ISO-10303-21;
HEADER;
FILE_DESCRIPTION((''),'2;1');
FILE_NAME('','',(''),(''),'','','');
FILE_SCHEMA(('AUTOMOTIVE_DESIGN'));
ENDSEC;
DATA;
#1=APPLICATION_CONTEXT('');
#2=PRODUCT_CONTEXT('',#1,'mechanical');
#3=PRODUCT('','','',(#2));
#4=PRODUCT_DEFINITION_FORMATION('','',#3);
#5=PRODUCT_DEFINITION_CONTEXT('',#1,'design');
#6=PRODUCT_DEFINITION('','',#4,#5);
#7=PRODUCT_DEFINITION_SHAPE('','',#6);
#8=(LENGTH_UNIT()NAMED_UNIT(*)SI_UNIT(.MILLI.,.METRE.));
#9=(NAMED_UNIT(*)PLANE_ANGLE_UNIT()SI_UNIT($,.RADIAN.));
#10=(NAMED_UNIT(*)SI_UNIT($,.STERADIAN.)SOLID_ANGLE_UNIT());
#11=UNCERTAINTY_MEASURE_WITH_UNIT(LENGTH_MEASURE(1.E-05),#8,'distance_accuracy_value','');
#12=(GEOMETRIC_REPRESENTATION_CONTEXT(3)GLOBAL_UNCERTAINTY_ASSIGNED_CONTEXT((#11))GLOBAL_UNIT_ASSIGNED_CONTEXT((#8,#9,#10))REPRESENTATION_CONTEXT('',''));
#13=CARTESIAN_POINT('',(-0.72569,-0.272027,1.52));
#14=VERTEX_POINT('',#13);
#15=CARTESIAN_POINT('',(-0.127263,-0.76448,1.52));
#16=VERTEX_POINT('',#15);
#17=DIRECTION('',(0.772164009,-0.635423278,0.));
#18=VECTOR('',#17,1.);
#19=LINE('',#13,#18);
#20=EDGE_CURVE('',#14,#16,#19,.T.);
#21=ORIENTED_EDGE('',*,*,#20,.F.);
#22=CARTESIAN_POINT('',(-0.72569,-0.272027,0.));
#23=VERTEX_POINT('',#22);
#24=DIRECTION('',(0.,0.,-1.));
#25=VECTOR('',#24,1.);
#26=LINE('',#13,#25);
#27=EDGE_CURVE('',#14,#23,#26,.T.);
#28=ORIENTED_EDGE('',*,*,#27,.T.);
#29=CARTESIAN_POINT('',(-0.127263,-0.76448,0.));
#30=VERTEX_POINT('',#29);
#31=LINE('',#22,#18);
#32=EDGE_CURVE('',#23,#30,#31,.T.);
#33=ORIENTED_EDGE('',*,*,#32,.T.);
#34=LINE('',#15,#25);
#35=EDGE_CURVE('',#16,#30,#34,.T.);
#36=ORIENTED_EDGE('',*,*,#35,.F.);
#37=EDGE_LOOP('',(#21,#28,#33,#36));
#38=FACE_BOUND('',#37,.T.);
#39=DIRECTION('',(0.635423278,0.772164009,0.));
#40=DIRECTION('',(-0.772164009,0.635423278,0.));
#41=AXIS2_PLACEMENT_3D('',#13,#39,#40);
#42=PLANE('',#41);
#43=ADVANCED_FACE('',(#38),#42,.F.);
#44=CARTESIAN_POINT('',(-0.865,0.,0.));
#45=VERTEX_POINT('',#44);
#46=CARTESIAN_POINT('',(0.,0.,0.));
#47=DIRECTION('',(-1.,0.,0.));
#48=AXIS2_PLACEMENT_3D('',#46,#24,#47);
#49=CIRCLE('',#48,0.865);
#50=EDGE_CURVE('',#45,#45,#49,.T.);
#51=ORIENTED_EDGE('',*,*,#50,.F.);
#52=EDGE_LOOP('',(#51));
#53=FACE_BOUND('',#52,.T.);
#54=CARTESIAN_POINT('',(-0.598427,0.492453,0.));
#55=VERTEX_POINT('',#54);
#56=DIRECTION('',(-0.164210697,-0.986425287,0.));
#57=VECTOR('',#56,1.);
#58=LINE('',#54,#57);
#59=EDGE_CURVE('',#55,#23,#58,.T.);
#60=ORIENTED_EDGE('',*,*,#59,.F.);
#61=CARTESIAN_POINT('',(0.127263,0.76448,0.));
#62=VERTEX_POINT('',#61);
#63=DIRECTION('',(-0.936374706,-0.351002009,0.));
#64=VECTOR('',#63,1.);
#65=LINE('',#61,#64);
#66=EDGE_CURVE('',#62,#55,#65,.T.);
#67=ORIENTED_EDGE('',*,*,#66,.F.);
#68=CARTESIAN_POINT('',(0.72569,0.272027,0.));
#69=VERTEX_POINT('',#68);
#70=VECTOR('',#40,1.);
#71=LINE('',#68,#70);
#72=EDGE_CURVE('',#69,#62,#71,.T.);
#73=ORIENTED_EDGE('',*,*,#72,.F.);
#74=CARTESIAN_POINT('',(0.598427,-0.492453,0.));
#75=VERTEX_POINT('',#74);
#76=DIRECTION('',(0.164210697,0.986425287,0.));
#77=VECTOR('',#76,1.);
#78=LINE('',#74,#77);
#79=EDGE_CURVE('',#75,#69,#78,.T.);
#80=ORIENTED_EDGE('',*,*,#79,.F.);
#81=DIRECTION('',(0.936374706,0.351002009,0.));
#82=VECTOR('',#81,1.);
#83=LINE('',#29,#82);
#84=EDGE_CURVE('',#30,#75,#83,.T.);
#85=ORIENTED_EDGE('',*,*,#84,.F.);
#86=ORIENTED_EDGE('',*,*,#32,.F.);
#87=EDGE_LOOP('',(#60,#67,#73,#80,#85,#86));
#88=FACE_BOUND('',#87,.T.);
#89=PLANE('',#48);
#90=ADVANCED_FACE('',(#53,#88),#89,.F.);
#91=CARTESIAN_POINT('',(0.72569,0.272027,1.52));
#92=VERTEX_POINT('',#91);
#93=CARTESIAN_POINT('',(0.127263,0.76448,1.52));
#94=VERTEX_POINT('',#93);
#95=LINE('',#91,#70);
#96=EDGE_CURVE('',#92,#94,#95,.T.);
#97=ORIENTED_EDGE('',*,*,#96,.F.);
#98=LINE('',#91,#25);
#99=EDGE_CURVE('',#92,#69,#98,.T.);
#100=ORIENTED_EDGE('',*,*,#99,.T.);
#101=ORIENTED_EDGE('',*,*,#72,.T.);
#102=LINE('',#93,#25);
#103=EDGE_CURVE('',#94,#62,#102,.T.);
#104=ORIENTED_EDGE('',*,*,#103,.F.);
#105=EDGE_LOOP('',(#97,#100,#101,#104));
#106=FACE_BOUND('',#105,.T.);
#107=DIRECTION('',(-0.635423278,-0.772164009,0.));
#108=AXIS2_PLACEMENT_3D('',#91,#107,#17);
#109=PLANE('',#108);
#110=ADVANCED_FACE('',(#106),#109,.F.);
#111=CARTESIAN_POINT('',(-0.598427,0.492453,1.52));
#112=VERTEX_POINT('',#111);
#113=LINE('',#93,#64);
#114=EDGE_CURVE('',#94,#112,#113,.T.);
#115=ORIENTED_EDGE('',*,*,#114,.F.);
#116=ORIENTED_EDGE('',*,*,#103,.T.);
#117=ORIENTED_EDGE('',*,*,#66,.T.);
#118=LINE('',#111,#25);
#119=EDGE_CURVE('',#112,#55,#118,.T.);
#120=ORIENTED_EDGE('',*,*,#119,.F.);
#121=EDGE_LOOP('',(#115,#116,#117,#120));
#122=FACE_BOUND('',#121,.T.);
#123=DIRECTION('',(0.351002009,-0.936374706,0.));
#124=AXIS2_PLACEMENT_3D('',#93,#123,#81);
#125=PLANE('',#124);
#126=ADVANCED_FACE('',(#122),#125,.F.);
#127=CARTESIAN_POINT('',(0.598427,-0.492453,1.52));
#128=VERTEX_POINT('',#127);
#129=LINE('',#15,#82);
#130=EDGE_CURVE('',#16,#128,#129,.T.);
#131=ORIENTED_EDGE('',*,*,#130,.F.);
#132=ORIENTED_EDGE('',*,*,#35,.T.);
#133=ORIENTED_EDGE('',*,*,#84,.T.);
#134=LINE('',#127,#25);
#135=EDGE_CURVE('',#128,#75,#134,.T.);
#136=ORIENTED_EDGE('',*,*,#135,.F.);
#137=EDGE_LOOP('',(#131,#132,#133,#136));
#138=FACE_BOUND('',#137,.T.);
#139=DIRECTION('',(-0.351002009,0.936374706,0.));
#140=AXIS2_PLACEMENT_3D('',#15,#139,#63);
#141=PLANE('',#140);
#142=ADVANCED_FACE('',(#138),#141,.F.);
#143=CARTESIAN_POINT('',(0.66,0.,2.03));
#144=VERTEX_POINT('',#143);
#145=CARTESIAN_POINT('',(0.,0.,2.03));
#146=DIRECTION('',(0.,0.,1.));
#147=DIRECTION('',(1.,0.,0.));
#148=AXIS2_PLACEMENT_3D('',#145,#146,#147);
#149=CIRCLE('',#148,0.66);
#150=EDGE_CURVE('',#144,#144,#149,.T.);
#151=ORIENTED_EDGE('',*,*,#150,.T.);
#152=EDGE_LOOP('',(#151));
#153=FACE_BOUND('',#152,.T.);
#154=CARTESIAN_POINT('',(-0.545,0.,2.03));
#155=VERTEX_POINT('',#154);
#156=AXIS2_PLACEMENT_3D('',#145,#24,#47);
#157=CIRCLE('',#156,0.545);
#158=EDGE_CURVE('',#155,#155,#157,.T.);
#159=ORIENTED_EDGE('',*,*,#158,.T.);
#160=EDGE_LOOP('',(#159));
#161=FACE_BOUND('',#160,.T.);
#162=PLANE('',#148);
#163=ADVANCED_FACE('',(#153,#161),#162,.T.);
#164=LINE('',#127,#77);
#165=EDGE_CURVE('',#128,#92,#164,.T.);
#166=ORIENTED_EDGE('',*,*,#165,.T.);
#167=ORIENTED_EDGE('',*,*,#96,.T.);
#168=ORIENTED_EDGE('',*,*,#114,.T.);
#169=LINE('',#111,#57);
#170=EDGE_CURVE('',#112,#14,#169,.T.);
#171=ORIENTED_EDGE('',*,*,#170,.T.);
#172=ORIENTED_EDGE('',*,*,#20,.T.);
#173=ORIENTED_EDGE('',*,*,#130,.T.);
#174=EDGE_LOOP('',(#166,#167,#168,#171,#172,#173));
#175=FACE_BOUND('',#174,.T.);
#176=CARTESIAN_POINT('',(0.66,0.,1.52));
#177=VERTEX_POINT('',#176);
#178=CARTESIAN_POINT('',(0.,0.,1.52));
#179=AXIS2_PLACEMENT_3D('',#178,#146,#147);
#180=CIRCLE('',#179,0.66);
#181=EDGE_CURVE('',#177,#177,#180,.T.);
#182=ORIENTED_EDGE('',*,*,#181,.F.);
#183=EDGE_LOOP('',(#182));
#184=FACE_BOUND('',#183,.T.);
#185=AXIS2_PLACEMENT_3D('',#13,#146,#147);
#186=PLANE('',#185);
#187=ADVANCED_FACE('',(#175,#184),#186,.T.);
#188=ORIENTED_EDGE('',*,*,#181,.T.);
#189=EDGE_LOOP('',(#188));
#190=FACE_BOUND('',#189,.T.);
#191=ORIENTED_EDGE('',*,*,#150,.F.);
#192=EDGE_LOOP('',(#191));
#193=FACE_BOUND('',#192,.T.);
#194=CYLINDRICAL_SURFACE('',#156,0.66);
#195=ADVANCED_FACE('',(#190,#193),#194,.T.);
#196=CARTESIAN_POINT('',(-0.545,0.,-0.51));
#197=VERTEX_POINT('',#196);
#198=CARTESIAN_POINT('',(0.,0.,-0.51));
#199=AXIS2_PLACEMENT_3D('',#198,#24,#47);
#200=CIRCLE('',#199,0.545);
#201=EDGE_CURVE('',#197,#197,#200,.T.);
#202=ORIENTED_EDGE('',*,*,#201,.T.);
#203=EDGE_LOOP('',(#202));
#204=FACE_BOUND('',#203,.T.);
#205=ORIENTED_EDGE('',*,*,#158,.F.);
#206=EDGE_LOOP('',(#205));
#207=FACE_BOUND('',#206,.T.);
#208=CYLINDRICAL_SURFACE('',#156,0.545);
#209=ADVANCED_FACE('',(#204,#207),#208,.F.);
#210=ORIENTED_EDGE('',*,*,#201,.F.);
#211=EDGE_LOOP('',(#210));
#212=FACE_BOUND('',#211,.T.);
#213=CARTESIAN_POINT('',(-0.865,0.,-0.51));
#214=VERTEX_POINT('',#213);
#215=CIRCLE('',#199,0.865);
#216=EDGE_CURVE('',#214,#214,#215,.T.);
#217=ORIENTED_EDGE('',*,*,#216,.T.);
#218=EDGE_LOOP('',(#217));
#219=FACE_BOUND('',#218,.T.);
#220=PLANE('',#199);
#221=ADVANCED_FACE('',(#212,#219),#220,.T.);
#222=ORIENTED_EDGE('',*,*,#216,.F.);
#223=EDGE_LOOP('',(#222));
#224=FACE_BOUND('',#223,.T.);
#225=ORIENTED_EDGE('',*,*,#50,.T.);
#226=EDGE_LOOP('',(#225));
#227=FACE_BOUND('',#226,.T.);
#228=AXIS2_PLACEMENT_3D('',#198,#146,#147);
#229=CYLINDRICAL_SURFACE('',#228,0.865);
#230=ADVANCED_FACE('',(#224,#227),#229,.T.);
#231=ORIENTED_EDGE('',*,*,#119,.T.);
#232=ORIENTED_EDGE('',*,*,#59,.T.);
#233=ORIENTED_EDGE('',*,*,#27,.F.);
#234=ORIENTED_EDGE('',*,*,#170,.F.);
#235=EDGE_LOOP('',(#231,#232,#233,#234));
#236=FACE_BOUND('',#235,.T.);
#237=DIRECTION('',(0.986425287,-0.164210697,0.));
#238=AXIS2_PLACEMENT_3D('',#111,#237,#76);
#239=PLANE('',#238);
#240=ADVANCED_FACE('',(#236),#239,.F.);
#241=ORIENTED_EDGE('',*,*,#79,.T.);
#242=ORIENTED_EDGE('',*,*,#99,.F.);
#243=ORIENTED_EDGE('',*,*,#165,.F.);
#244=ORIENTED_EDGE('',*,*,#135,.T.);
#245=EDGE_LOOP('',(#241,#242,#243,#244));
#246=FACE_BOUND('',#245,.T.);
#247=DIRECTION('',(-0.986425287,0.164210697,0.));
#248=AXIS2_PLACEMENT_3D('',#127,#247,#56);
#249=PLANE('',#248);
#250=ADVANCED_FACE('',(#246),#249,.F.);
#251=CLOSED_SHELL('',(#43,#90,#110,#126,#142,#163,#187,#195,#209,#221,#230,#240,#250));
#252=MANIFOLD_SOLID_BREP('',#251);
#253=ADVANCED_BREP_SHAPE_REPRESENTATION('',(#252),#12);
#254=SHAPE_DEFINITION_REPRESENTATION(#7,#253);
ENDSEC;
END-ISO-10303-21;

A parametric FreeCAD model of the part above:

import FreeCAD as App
import Part
import Sketcher

V = App.Vector
Q = App.Units.Quantity

doc = App.newDocument("Part")
body = doc.addObject("PartDesign::Body", "Body")

# Sketch on XY plane
sketch1 = doc.addObject("Sketcher::SketchObject", "Sketch")
body.addObject(sketch1)
sketch1.AttachmentSupport = (doc.XY_Plane, [""])
sketch1.MapMode = "FlatFace"
sketch1.addGeometry([
    Part.LineSegment(V(-0.72569, -0.272027, 0), V(-0.127263, -0.76448, 0)),  # 0
    Part.LineSegment(V(-0.127263, -0.76448, 0), V(0.598427, -0.492453, 0)),  # 1
    Part.LineSegment(V(0.598427, -0.492453, 0), V(0.72569, 0.272027, 0)),  # 2
    Part.LineSegment(V(0.72569, 0.272027, 0), V(0.127263, 0.76448, 0)),  # 3
    Part.LineSegment(V(0.127263, 0.76448, 0), V(-0.598427, 0.492453, 0)),  # 4
    Part.LineSegment(V(-0.598427, 0.492453, 0), V(-0.72569, -0.272027, 0)),  # 5
], False)
sketch1.addConstraint([
    Sketcher.Constraint("Coincident", 0, 2, 1, 1),
    Sketcher.Constraint("Coincident", 1, 2, 2, 1),
    Sketcher.Constraint("Coincident", 2, 2, 3, 1),
    Sketcher.Constraint("Coincident", 3, 2, 4, 1),
    Sketcher.Constraint("Coincident", 4, 2, 5, 1),
    Sketcher.Constraint("Coincident", 5, 2, 0, 1),
    Sketcher.Constraint("Symmetric", 0, 2, 3, 2, -1, 1),
    Sketcher.Constraint("Symmetric", 1, 2, 4, 2, -1, 1),
    Sketcher.Constraint("Symmetric", 2, 2, 5, 2, -1, 1),
    Sketcher.Constraint("Equal", 0, 1),
    Sketcher.Constraint("Equal", 1, 2),
    Sketcher.Constraint("Distance", 0, 0.775),
    Sketcher.Constraint("DistanceY", 0, 2, -1, 1, 0.76448),
    Sketcher.Constraint("DistanceX", -1, 1, 2, 2, 0.72569),
    Sketcher.Constraint("DistanceX", 0, 2, 1, 2, 0.72569),
])
pad1 = doc.addObject("PartDesign::Pad", "Pad")
body.addObject(pad1)
pad1.Profile = sketch1
pad1.Length = 1.52

# Sketch on XY plane
sketch2 = doc.addObject("Sketcher::SketchObject", "Sketch001")
body.addObject(sketch2)
sketch2.AttachmentSupport = (doc.XY_Plane, [""])
sketch2.MapMode = "FlatFace"
sketch2.AttachmentOffset = App.Placement(V(0, 0, 1.52), App.Rotation())
sketch2.addGeometry(Part.Circle(V(0, 0, 0), V(0, 0, 1), 0.66), False)
sketch2.addConstraint([
    Sketcher.Constraint("Coincident", 0, 3, -1, 1),
    Sketcher.Constraint("Diameter", 0, 1.32),
])
pad2 = doc.addObject("PartDesign::Pad", "Pad001")
body.addObject(pad2)
pad2.Profile = sketch2
pad2.Length = 0.51

# Sketch on XY plane
sketch3 = doc.addObject("Sketcher::SketchObject", "Sketch002")
body.addObject(sketch3)
sketch3.AttachmentSupport = (doc.XY_Plane, [""])
sketch3.MapMode = "FlatFace"
sketch3.addGeometry(Part.Circle(V(0, 0, 0), V(0, 0, 1), 0.865), False)
sketch3.addConstraint([
    Sketcher.Constraint("Coincident", 0, 3, -1, 1),
    Sketcher.Constraint("Diameter", 0, 1.73),
])
pad3 = doc.addObject("PartDesign::Pad", "Pad002")
body.addObject(pad3)
pad3.Profile = sketch3
pad3.Length = 0.51
pad3.Reversed = True

# Sketch on XY plane
sketch4 = doc.addObject("Sketcher::SketchObject", "Sketch003")
body.addObject(sketch4)
sketch4.AttachmentSupport = (doc.XY_Plane, [""])
sketch4.MapMode = "FlatFace"
sketch4.AttachmentOffset = App.Placement(V(0, 0, -0.51), App.Rotation())
sketch4.addGeometry(Part.Circle(V(0, 0, 0), V(0, 0, 1), 0.545), False)
sketch4.addConstraint([
    Sketcher.Constraint("Coincident", 0, 3, -1, 1),
    Sketcher.Constraint("Diameter", 0, 1.09),
])
pocket1 = doc.addObject("PartDesign::Pocket", "Pocket")
body.addObject(pocket1)
pocket1.Profile = sketch4
pocket1.Length = Q("0.1 in")
pocket1.Reversed = True

doc.recompute()
